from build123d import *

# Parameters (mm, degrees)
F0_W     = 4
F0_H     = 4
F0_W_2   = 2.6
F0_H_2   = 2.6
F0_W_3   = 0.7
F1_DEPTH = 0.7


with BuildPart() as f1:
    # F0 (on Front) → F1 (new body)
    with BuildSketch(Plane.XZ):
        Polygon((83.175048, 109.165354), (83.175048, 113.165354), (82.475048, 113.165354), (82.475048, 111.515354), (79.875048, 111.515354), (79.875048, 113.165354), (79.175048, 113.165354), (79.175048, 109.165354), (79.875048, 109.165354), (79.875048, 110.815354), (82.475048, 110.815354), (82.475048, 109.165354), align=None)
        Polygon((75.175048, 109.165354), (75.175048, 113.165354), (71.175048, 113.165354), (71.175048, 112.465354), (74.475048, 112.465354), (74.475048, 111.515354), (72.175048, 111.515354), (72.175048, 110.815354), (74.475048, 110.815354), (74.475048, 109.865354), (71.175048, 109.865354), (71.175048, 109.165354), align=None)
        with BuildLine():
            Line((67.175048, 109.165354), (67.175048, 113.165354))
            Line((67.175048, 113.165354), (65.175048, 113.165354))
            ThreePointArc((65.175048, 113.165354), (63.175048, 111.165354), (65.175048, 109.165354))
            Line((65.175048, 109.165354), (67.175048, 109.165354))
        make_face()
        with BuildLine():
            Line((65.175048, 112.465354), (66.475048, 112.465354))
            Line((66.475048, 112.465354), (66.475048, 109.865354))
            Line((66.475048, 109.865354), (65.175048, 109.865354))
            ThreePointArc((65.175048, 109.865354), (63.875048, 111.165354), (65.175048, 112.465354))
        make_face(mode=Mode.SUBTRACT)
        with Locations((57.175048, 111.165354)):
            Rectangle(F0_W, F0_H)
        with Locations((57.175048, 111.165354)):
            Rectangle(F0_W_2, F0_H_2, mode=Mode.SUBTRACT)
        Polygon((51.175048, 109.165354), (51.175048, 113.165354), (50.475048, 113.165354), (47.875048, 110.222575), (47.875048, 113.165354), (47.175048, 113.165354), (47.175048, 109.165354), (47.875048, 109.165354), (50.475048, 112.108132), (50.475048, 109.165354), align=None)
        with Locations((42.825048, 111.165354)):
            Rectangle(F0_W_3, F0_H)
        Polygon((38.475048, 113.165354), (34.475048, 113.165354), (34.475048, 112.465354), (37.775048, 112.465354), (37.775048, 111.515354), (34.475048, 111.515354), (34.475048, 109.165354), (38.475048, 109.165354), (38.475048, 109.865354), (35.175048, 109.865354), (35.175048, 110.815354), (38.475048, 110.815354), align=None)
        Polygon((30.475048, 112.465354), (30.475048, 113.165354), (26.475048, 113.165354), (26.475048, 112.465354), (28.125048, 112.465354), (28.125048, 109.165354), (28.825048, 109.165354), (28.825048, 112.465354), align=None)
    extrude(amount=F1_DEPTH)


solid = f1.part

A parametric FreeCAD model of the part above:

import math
import FreeCAD as App
import Part
import Sketcher

doc = App.newDocument("Part")
body = doc.addObject("PartDesign::Body", "Body")
body.AllowCompound = True

sketch1 = body.newObject("Sketcher::SketchObject", "Sketch")
sketch1.AttachmentSupport = (doc.getObject("XZ_Plane"), [""])
sketch1.MapMode = "FlatFace"
sketch1.addGeometry(Part.LineSegment(App.Vector(83.175048, 109.165354, 0), App.Vector(83.175048, 113.165354, 0)), False)
sketch1.addGeometry(Part.LineSegment(App.Vector(83.175048, 113.165354, 0), App.Vector(82.475048, 113.165354, 0)), False)
sketch1.addGeometry(Part.LineSegment(App.Vector(82.475048, 113.165354, 0), App.Vector(82.475048, 111.515354, 0)), False)
sketch1.addGeometry(Part.LineSegment(App.Vector(82.475048, 111.515354, 0), App.Vector(79.875048, 111.515354, 0)), False)
sketch1.addGeometry(Part.LineSegment(App.Vector(79.875048, 111.515354, 0), App.Vector(79.875048, 113.165354, 0)), False)
sketch1.addGeometry(Part.LineSegment(App.Vector(79.875048, 113.165354, 0), App.Vector(79.175048, 113.165354, 0)), False)
sketch1.addGeometry(Part.LineSegment(App.Vector(79.175048, 113.165354, 0), App.Vector(79.175048, 109.165354, 0)), False)
sketch1.addGeometry(Part.LineSegment(App.Vector(79.175048, 109.165354, 0), App.Vector(79.875048, 109.165354, 0)), False)
sketch1.addGeometry(Part.LineSegment(App.Vector(79.875048, 109.165354, 0), App.Vector(79.875048, 110.815354, 0)), False)
sketch1.addGeometry(Part.LineSegment(App.Vector(79.875048, 110.815354, 0), App.Vector(82.475048, 110.815354, 0)), False)
sketch1.addGeometry(Part.LineSegment(App.Vector(82.475048, 110.815354, 0), App.Vector(82.475048, 109.165354, 0)), False)
sketch1.addGeometry(Part.LineSegment(App.Vector(82.475048, 109.165354, 0), App.Vector(83.175048, 109.165354, 0)), False)
sketch1.addGeometry(Part.LineSegment(App.Vector(75.175048, 109.165354, 0), App.Vector(75.175048, 113.165354, 0)), False)
sketch1.addGeometry(Part.LineSegment(App.Vector(75.175048, 113.165354, 0), App.Vector(71.175048, 113.165354, 0)), False)
sketch1.addGeometry(Part.LineSegment(App.Vector(71.175048, 113.165354, 0), App.Vector(71.175048, 112.465354, 0)), False)
sketch1.addGeometry(Part.LineSegment(App.Vector(71.175048, 112.465354, 0), App.Vector(74.475048, 112.465354, 0)), False)
sketch1.addGeometry(Part.LineSegment(App.Vector(74.475048, 112.465354, 0), App.Vector(74.475048, 111.515354, 0)), False)
sketch1.addGeometry(Part.LineSegment(App.Vector(74.475048, 111.515354, 0), App.Vector(72.175048, 111.515354, 0)), False)
sketch1.addGeometry(Part.LineSegment(App.Vector(72.175048, 111.515354, 0), App.Vector(72.175048, 110.815354, 0)), False)
sketch1.addGeometry(Part.LineSegment(App.Vector(72.175048, 110.815354, 0), App.Vector(74.475048, 110.815354, 0)), False)
sketch1.addGeometry(Part.LineSegment(App.Vector(74.475048, 110.815354, 0), App.Vector(74.475048, 109.865354, 0)), False)
sketch1.addGeometry(Part.LineSegment(App.Vector(74.475048, 109.865354, 0), App.Vector(71.175048, 109.865354, 0)), False)
sketch1.addGeometry(Part.LineSegment(App.Vector(71.175048, 109.865354, 0), App.Vector(71.175048, 109.165354, 0)), False)
sketch1.addGeometry(Part.LineSegment(App.Vector(71.175048, 109.165354, 0), App.Vector(75.175048, 109.165354, 0)), False)
sketch1.addGeometry(Part.LineSegment(App.Vector(67.175048, 109.165354, 0), App.Vector(67.175048, 113.165354, 0)), False)
sketch1.addGeometry(Part.LineSegment(App.Vector(67.175048, 113.165354, 0), App.Vector(65.175048, 113.165354, 0)), False)
sketch1.addGeometry(Part.ArcOfCircle(Part.Circle(App.Vector(65.175048, 111.165354, 0), App.Vector(0, 0, 1), 2), math.radians(90), math.radians(270)), False)
sketch1.addGeometry(Part.LineSegment(App.Vector(65.175048, 109.165354, 0), App.Vector(67.175048, 109.165354, 0)), False)
sketch1.addGeometry(Part.ArcOfCircle(Part.Circle(App.Vector(65.175048, 111.165354, 0), App.Vector(0, 0, 1), 1.3), math.radians(90), math.radians(270)), False)
sketch1.addGeometry(Part.LineSegment(App.Vector(65.175048, 112.465354, 0), App.Vector(66.475048, 112.465354, 0)), False)
sketch1.addGeometry(Part.LineSegment(App.Vector(66.475048, 112.465354, 0), App.Vector(66.475048, 109.865354, 0)), False)
sketch1.addGeometry(Part.LineSegment(App.Vector(66.475048, 109.865354, 0), App.Vector(65.175048, 109.865354, 0)), False)
sketch1.addGeometry(Part.LineSegment(App.Vector(55.175048, 113.165354, 0), App.Vector(55.175048, 109.165354, 0)), False)
sketch1.addGeometry(Part.LineSegment(App.Vector(55.175048, 109.165354, 0), App.Vector(59.175048, 109.165354, 0)), False)
sketch1.addGeometry(Part.LineSegment(App.Vector(59.175048, 109.165354, 0), App.Vector(59.175048, 113.165354, 0)), False)
sketch1.addGeometry(Part.LineSegment(App.Vector(59.175048, 113.165354, 0), App.Vector(55.175048, 113.165354, 0)), False)
sketch1.addGeometry(Part.LineSegment(App.Vector(58.475048, 109.865354, 0), App.Vector(55.875048, 109.865354, 0)), False)
sketch1.addGeometry(Part.LineSegment(App.Vector(55.875048, 109.865354, 0), App.Vector(55.875048, 112.465354, 0)), False)
sketch1.addGeometry(Part.LineSegment(App.Vector(55.875048, 112.465354, 0), App.Vector(58.475048, 112.465354, 0)), False)
sketch1.addGeometry(Part.LineSegment(App.Vector(58.475048, 112.465354, 0), App.Vector(58.475048, 109.865354, 0)), False)
sketch1.addGeometry(Part.LineSegment(App.Vector(51.175048, 109.165354, 0), App.Vector(51.175048, 113.165354, 0)), False)
sketch1.addGeometry(Part.LineSegment(App.Vector(51.175048, 113.165354, 0), App.Vector(50.475048, 113.165354, 0)), False)
sketch1.addGeometry(Part.LineSegment(App.Vector(50.475048, 113.165354, 0), App.Vector(47.875048, 110.222575, 0)), False)
sketch1.addGeometry(Part.LineSegment(App.Vector(47.875048, 110.222575, 0), App.Vector(47.875048, 113.165354, 0)), False)
sketch1.addGeometry(Part.LineSegment(App.Vector(47.875048, 113.165354, 0), App.Vector(47.175048, 113.165354, 0)), False)
sketch1.addGeometry(Part.LineSegment(App.Vector(47.175048, 113.165354, 0), App.Vector(47.175048, 109.165354, 0)), False)
sketch1.addGeometry(Part.LineSegment(App.Vector(47.175048, 109.165354, 0), App.Vector(47.875048, 109.165354, 0)), False)
sketch1.addGeometry(Part.LineSegment(App.Vector(47.875048, 109.165354, 0), App.Vector(50.475048, 112.108132, 0)), False)
sketch1.addGeometry(Part.LineSegment(App.Vector(50.475048, 112.108132, 0), App.Vector(50.475048, 109.165354, 0)), False)
sketch1.addGeometry(Part.LineSegment(App.Vector(50.475048, 109.165354, 0), App.Vector(51.175048, 109.165354, 0)), False)
sketch1.addGeometry(Part.LineSegment(App.Vector(42.475048, 113.165354, 0), App.Vector(42.475048, 109.165354, 0)), False)
sketch1.addGeometry(Part.LineSegment(App.Vector(42.475048, 109.165354, 0), App.Vector(43.175048, 109.165354, 0)), False)
sketch1.addGeometry(Part.LineSegment(App.Vector(43.175048, 109.165354, 0), App.Vector(43.175048, 113.165354, 0)), False)
sketch1.addGeometry(Part.LineSegment(App.Vector(43.175048, 113.165354, 0), App.Vector(42.475048, 113.165354, 0)), False)
sketch1.addGeometry(Part.LineSegment(App.Vector(38.475048, 113.165354, 0), App.Vector(34.475048, 113.165354, 0)), False)
sketch1.addGeometry(Part.LineSegment(App.Vector(34.475048, 113.165354, 0), App.Vector(34.475048, 112.465354, 0)), False)
sketch1.addGeometry(Part.LineSegment(App.Vector(34.475048, 112.465354, 0), App.Vector(37.775048, 112.465354, 0)), False)
sketch1.addGeometry(Part.LineSegment(App.Vector(37.775048, 112.465354, 0), App.Vector(37.775048, 111.515354, 0)), False)
sketch1.addGeometry(Part.LineSegment(App.Vector(37.775048, 111.515354, 0), App.Vector(34.475048, 111.515354, 0)), False)
sketch1.addGeometry(Part.LineSegment(App.Vector(34.475048, 111.515354, 0), App.Vector(34.475048, 109.165354, 0)), False)
sketch1.addGeometry(Part.LineSegment(App.Vector(34.475048, 109.165354, 0), App.Vector(38.475048, 109.165354, 0)), False)
sketch1.addGeometry(Part.LineSegment(App.Vector(38.475048, 109.165354, 0), App.Vector(38.475048, 109.865354, 0)), False)
sketch1.addGeometry(Part.LineSegment(App.Vector(38.475048, 109.865354, 0), App.Vector(35.175048, 109.865354, 0)), False)
sketch1.addGeometry(Part.LineSegment(App.Vector(35.175048, 109.865354, 0), App.Vector(35.175048, 110.815354, 0)), False)
sketch1.addGeometry(Part.LineSegment(App.Vector(35.175048, 110.815354, 0), App.Vector(38.475048, 110.815354, 0)), False)
sketch1.addGeometry(Part.LineSegment(App.Vector(38.475048, 110.815354, 0), App.Vector(38.475048, 113.165354, 0)), False)
sketch1.addGeometry(Part.LineSegment(App.Vector(30.475048, 112.465354, 0), App.Vector(30.475048, 113.165354, 0)), False)
sketch1.addGeometry(Part.LineSegment(App.Vector(30.475048, 113.165354, 0), App.Vector(26.475048, 113.165354, 0)), False)
sketch1.addGeometry(Part.LineSegment(App.Vector(26.475048, 113.165354, 0), App.Vector(26.475048, 112.465354, 0)), False)
sketch1.addGeometry(Part.LineSegment(App.Vector(26.475048, 112.465354, 0), App.Vector(28.125048, 112.465354, 0)), False)
sketch1.addGeometry(Part.LineSegment(App.Vector(28.125048, 112.465354, 0), App.Vector(28.125048, 109.165354, 0)), False)
sketch1.addGeometry(Part.LineSegment(App.Vector(28.125048, 109.165354, 0), App.Vector(28.825048, 109.165354, 0)), False)
sketch1.addGeometry(Part.LineSegment(App.Vector(28.825048, 109.165354, 0), App.Vector(28.825048, 112.465354, 0)), False)
sketch1.addGeometry(Part.LineSegment(App.Vector(28.825048, 112.465354, 0), App.Vector(30.475048, 112.465354, 0)), False)
sketch1.addConstraint(Sketcher.Constraint("Coincident", 0, 2, 1, 1))
sketch1.addConstraint(Sketcher.Constraint("Coincident", 1, 2, 2, 1))
sketch1.addConstraint(Sketcher.Constraint("Coincident", 2, 2, 3, 1))
sketch1.addConstraint(Sketcher.Constraint("Coincident", 3, 2, 4, 1))
sketch1.addConstraint(Sketcher.Constraint("Coincident", 4, 2, 5, 1))
sketch1.addConstraint(Sketcher.Constraint("Coincident", 5, 2, 6, 1))
sketch1.addConstraint(Sketcher.Constraint("Coincident", 6, 2, 7, 1))
sketch1.addConstraint(Sketcher.Constraint("Coincident", 7, 2, 8, 1))
sketch1.addConstraint(Sketcher.Constraint("Coincident", 8, 2, 9, 1))
sketch1.addConstraint(Sketcher.Constraint("Coincident", 9, 2, 10, 1))
sketch1.addConstraint(Sketcher.Constraint("Coincident", 10, 2, 11, 1))
sketch1.addConstraint(Sketcher.Constraint("Coincident", 11, 2, 0, 1))
sketch1.addConstraint(Sketcher.Constraint("Coincident", 12, 2, 13, 1))
sketch1.addConstraint(Sketcher.Constraint("Coincident", 13, 2, 14, 1))
sketch1.addConstraint(Sketcher.Constraint("Coincident", 14, 2, 15, 1))
sketch1.addConstraint(Sketcher.Constraint("Coincident", 15, 2, 16, 1))
sketch1.addConstraint(Sketcher.Constraint("Coincident", 16, 2, 17, 1))
sketch1.addConstraint(Sketcher.Constraint("Coincident", 17, 2, 18, 1))
sketch1.addConstraint(Sketcher.Constraint("Coincident", 18, 2, 19, 1))
sketch1.addConstraint(Sketcher.Constraint("Coincident", 19, 2, 20, 1))
sketch1.addConstraint(Sketcher.Constraint("Coincident", 20, 2, 21, 1))
sketch1.addConstraint(Sketcher.Constraint("Coincident", 21, 2, 22, 1))
sketch1.addConstraint(Sketcher.Constraint("Coincident", 22, 2, 23, 1))
sketch1.addConstraint(Sketcher.Constraint("Coincident", 23, 2, 12, 1))
sketch1.addConstraint(Sketcher.Constraint("Coincident", 24, 2, 25, 1))
sketch1.addConstraint(Sketcher.Constraint("Tangent", 25, 2, 26, 1))
sketch1.addConstraint(Sketcher.Constraint("Tangent", 26, 2, 27, 1))
sketch1.addConstraint(Sketcher.Constraint("Coincident", 27, 2, 24, 1))
sketch1.addConstraint(Sketcher.Constraint("Tangent", 28, 1, 29, 1))
sketch1.addConstraint(Sketcher.Constraint("Coincident", 29, 2, 30, 1))
sketch1.addConstraint(Sketcher.Constraint("Coincident", 30, 2, 31, 1))
sketch1.addConstraint(Sketcher.Constraint("Tangent", 31, 2, 28, 2))
sketch1.addConstraint(Sketcher.Constraint("Coincident", 32, 2, 33, 1))
sketch1.addConstraint(Sketcher.Constraint("Coincident", 33, 2, 34, 1))
sketch1.addConstraint(Sketcher.Constraint("Coincident", 34, 2, 35, 1))
sketch1.addConstraint(Sketcher.Constraint("Coincident", 35, 2, 32, 1))
sketch1.addConstraint(Sketcher.Constraint("Coincident", 36, 2, 37, 1))
sketch1.addConstraint(Sketcher.Constraint("Coincident", 37, 2, 38, 1))
sketch1.addConstraint(Sketcher.Constraint("Coincident", 38, 2, 39, 1))
sketch1.addConstraint(Sketcher.Constraint("Coincident", 39, 2, 36, 1))
sketch1.addConstraint(Sketcher.Constraint("Coincident", 40, 2, 41, 1))
sketch1.addConstraint(Sketcher.Constraint("Coincident", 41, 2, 42, 1))
sketch1.addConstraint(Sketcher.Constraint("Coincident", 42, 2, 43, 1))
sketch1.addConstraint(Sketcher.Constraint("Coincident", 43, 2, 44, 1))
sketch1.addConstraint(Sketcher.Constraint("Coincident", 44, 2, 45, 1))
sketch1.addConstraint(Sketcher.Constraint("Coincident", 45, 2, 46, 1))
sketch1.addConstraint(Sketcher.Constraint("Coincident", 46, 2, 47, 1))
sketch1.addConstraint(Sketcher.Constraint("Coincident", 47, 2, 48, 1))
sketch1.addConstraint(Sketcher.Constraint("Coincident", 48, 2, 49, 1))
sketch1.addConstraint(Sketcher.Constraint("Coincident", 49, 2, 40, 1))
sketch1.addConstraint(Sketcher.Constraint("Coincident", 50, 2, 51, 1))
sketch1.addConstraint(Sketcher.Constraint("Coincident", 51, 2, 52, 1))
sketch1.addConstraint(Sketcher.Constraint("Coincident", 52, 2, 53, 1))
sketch1.addConstraint(Sketcher.Constraint("Coincident", 53, 2, 50, 1))
sketch1.addConstraint(Sketcher.Constraint("Coincident", 54, 2, 55, 1))
sketch1.addConstraint(Sketcher.Constraint("Coincident", 55, 2, 56, 1))
sketch1.addConstraint(Sketcher.Constraint("Coincident", 56, 2, 57, 1))
sketch1.addConstraint(Sketcher.Constraint("Coincident", 57, 2, 58, 1))
sketch1.addConstraint(Sketcher.Constraint("Coincident", 58, 2, 59, 1))
sketch1.addConstraint(Sketcher.Constraint("Coincident", 59, 2, 60, 1))
sketch1.addConstraint(Sketcher.Constraint("Coincident", 60, 2, 61, 1))
sketch1.addConstraint(Sketcher.Constraint("Coincident", 61, 2, 62, 1))
sketch1.addConstraint(Sketcher.Constraint("Coincident", 62, 2, 63, 1))
sketch1.addConstraint(Sketcher.Constraint("Coincident", 63, 2, 64, 1))
sketch1.addConstraint(Sketcher.Constraint("Coincident", 64, 2, 65, 1))
sketch1.addConstraint(Sketcher.Constraint("Coincident", 65, 2, 54, 1))
sketch1.addConstraint(Sketcher.Constraint("Coincident", 66, 2, 67, 1))
sketch1.addConstraint(Sketcher.Constraint("Coincident", 67, 2, 68, 1))
sketch1.addConstraint(Sketcher.Constraint("Coincident", 68, 2, 69, 1))
sketch1.addConstraint(Sketcher.Constraint("Coincident", 69, 2, 70, 1))
sketch1.addConstraint(Sketcher.Constraint("Coincident", 70, 2, 71, 1))
sketch1.addConstraint(Sketcher.Constraint("Coincident", 71, 2, 72, 1))
sketch1.addConstraint(Sketcher.Constraint("Coincident", 72, 2, 73, 1))
sketch1.addConstraint(Sketcher.Constraint("Coincident", 73, 2, 66, 1))
sketch1.addConstraint(Sketcher.Constraint("Vertical", 0))
sketch1.addConstraint(Sketcher.Constraint("Horizontal", 1))
sketch1.addConstraint(Sketcher.Constraint("Vertical", 2))
sketch1.addConstraint(Sketcher.Constraint("Horizontal", 3))
sketch1.addConstraint(Sketcher.Constraint("Vertical", 4))
sketch1.addConstraint(Sketcher.Constraint("Horizontal", 5))
sketch1.addConstraint(Sketcher.Constraint("Vertical", 6))
sketch1.addConstraint(Sketcher.Constraint("Horizontal", 7))
sketch1.addConstraint(Sketcher.Constraint("Vertical", 8))
sketch1.addConstraint(Sketcher.Constraint("Horizontal", 9))
sketch1.addConstraint(Sketcher.Constraint("Vertical", 10))
sketch1.addConstraint(Sketcher.Constraint("Horizontal", 11))
sketch1.addConstraint(Sketcher.Constraint("Vertical", 12))
sketch1.addConstraint(Sketcher.Constraint("Horizontal", 13))
sketch1.addConstraint(Sketcher.Constraint("Vertical", 14))
sketch1.addConstraint(Sketcher.Constraint("Horizontal", 15))
sketch1.addConstraint(Sketcher.Constraint("Vertical", 16))
sketch1.addConstraint(Sketcher.Constraint("Horizontal", 17))
sketch1.addConstraint(Sketcher.Constraint("Vertical", 18))
sketch1.addConstraint(Sketcher.Constraint("Horizontal", 19))
sketch1.addConstraint(Sketcher.Constraint("Vertical", 20))
sketch1.addConstraint(Sketcher.Constraint("Horizontal", 21))
sketch1.addConstraint(Sketcher.Constraint("Vertical", 22))
sketch1.addConstraint(Sketcher.Constraint("Horizontal", 23))
sketch1.addConstraint(Sketcher.Constraint("Vertical", 24))
sketch1.addConstraint(Sketcher.Constraint("Horizontal", 25))
sketch1.addConstraint(Sketcher.Constraint("Horizontal", 27))
sketch1.addConstraint(Sketcher.Constraint("Horizontal", 29))
sketch1.addConstraint(Sketcher.Constraint("Vertical", 30))
sketch1.addConstraint(Sketcher.Constraint("Horizontal", 31))
sketch1.addConstraint(Sketcher.Constraint("Vertical", 32))
sketch1.addConstraint(Sketcher.Constraint("Horizontal", 33))
sketch1.addConstraint(Sketcher.Constraint("Vertical", 34))
sketch1.addConstraint(Sketcher.Constraint("Horizontal", 35))
sketch1.addConstraint(Sketcher.Constraint("Horizontal", 36))
sketch1.addConstraint(Sketcher.Constraint("Vertical", 37))
sketch1.addConstraint(Sketcher.Constraint("Horizontal", 38))
sketch1.addConstraint(Sketcher.Constraint("Vertical", 39))
sketch1.addConstraint(Sketcher.Constraint("Vertical", 40))
sketch1.addConstraint(Sketcher.Constraint("Horizontal", 41))
sketch1.addConstraint(Sketcher.Constraint("Vertical", 43))
sketch1.addConstraint(Sketcher.Constraint("Horizontal", 44))
sketch1.addConstraint(Sketcher.Constraint("Vertical", 45))
sketch1.addConstraint(Sketcher.Constraint("Horizontal", 46))
sketch1.addConstraint(Sketcher.Constraint("Vertical", 48))
sketch1.addConstraint(Sketcher.Constraint("Horizontal", 49))
sketch1.addConstraint(Sketcher.Constraint("Vertical", 50))
sketch1.addConstraint(Sketcher.Constraint("Horizontal", 51))
sketch1.addConstraint(Sketcher.Constraint("Vertical", 52))
sketch1.addConstraint(Sketcher.Constraint("Horizontal", 53))
sketch1.addConstraint(Sketcher.Constraint("Horizontal", 54))
sketch1.addConstraint(Sketcher.Constraint("Vertical", 55))
sketch1.addConstraint(Sketcher.Constraint("Horizontal", 56))
sketch1.addConstraint(Sketcher.Constraint("Vertical", 57))
sketch1.addConstraint(Sketcher.Constraint("Horizontal", 58))
sketch1.addConstraint(Sketcher.Constraint("Vertical", 59))
sketch1.addConstraint(Sketcher.Constraint("Horizontal", 60))
sketch1.addConstraint(Sketcher.Constraint("Vertical", 61))
sketch1.addConstraint(Sketcher.Constraint("Horizontal", 62))
sketch1.addConstraint(Sketcher.Constraint("Vertical", 63))
sketch1.addConstraint(Sketcher.Constraint("Horizontal", 64))
sketch1.addConstraint(Sketcher.Constraint("Vertical", 65))
sketch1.addConstraint(Sketcher.Constraint("Vertical", 66))
sketch1.addConstraint(Sketcher.Constraint("Horizontal", 67))
sketch1.addConstraint(Sketcher.Constraint("Vertical", 68))
sketch1.addConstraint(Sketcher.Constraint("Horizontal", 69))
sketch1.addConstraint(Sketcher.Constraint("Vertical", 70))
sketch1.addConstraint(Sketcher.Constraint("Horizontal", 71))
sketch1.addConstraint(Sketcher.Constraint("Vertical", 72))
sketch1.addConstraint(Sketcher.Constraint("Horizontal", 73))
sketch1.addConstraint(Sketcher.Constraint("Coincident", 28, 3, 26, 3))
sketch1.addConstraint(Sketcher.Constraint("Parallel", 42, 47))
sketch1.addConstraint(Sketcher.Constraint("Horizontal", 1, 2, 4, 2))
sketch1.addConstraint(Sketcher.Constraint("Horizontal", 7, 2, 10, 2))
sketch1.addConstraint(Sketcher.Constraint("Horizontal", 5, 2, 12, 2))
sketch1.addConstraint(Sketcher.Constraint("Horizontal", 3, 2, 16, 2))
sketch1.addConstraint(Sketcher.Constraint("Horizontal", 9, 2, 18, 2))
sketch1.addConstraint(Sketcher.Constraint("Horizontal", 11, 2, 22, 2))
sketch1.addConstraint(Sketcher.Constraint("Horizontal", 13, 2, 24, 2))
sketch1.addConstraint(Sketcher.Constraint("Horizontal", 23, 2, 26, 2))
sketch1.addConstraint(Sketcher.Constraint("Horizontal", 15, 2, 28, 1))
sketch1.addConstraint(Sketcher.Constraint("Horizontal", 21, 2, 30, 2))
sketch1.addConstraint(Sketcher.Constraint("Horizontal", 27, 2, 32, 2))
sketch1.addConstraint(Sketcher.Constraint("Horizontal", 25, 2, 34, 2))
sketch1.addConstraint(Sketcher.Constraint("Horizontal", 31, 2, 36, 2))
sketch1.addConstraint(Sketcher.Constraint("Horizontal", 29, 2, 37, 2))
sketch1.addConstraint(Sketcher.Constraint("Horizontal", 35, 2, 40, 2))
sketch1.addConstraint(Sketcher.Constraint("Horizontal", 41, 2, 43, 2))
sketch1.addConstraint(Sketcher.Constraint("Horizontal", 33, 2, 45, 2))
sketch1.addConstraint(Sketcher.Constraint("Horizontal", 46, 2, 48, 2))
sketch1.addConstraint(Sketcher.Constraint("Horizontal", 49, 2, 50, 2))
sketch1.addConstraint(Sketcher.Constraint("Horizontal", 44, 2, 52, 2))
sketch1.addConstraint(Sketcher.Constraint("Horizontal", 53, 2, 54, 2))
sketch1.addConstraint(Sketcher.Constraint("Horizontal", 38, 2, 55, 2))
sketch1.addConstraint(Sketcher.Constraint("Horizontal", 17, 2, 57, 2))
sketch1.addConstraint(Sketcher.Constraint("Horizontal", 51, 2, 59, 2))
sketch1.addConstraint(Sketcher.Constraint("Horizontal", 39, 2, 61, 2))
sketch1.addConstraint(Sketcher.Constraint("Horizontal", 19, 2, 63, 2))
sketch1.addConstraint(Sketcher.Constraint("Horizontal", 65, 2, 66, 2))
sketch1.addConstraint(Sketcher.Constraint("Horizontal", 56, 2, 68, 2))
sketch1.addConstraint(Sketcher.Constraint("Horizontal", 60, 2, 70, 2))
sketch1.addConstraint(Sketcher.Constraint("Horizontal", 69, 2, 72, 2))
sketch1.addConstraint(Sketcher.Constraint("Vertical", 4, 2, 7, 2))
sketch1.addConstraint(Sketcher.Constraint("Vertical", 2, 2, 9, 2))
sketch1.addConstraint(Sketcher.Constraint("Vertical", 16, 2, 19, 2))
sketch1.addConstraint(Sketcher.Constraint("Vertical", 14, 2, 21, 2))
sketch1.addConstraint(Sketcher.Constraint("Vertical", 43, 2, 46, 2))
sketch1.addConstraint(Sketcher.Constraint("Vertical", 41, 2, 47, 2))
sketch1.addConstraint(Sketcher.Constraint("Vertical", 55, 2, 58, 2))
sketch1.addConstraint(Sketcher.Constraint("Vertical", 61, 2, 64, 2))
sketch1.addConstraint(Sketcher.Constraint("Equal", 1, 5))
sketch1.addConstraint(Sketcher.Constraint("Equal", 23, 33))
sketch1.addConstraint(Sketcher.Constraint("Equal", 9, 36))
sketch1.addConstraint(Sketcher.Constraint("Equal", 11, 41))
sketch1.addConstraint(Sketcher.Constraint("Equal", 41, 44))
sketch1.addConstraint(Sketcher.Constraint("Equal", 49, 51))
sketch1.addConstraint(Sketcher.Constraint("Equal", 35, 54))
sketch1.addConstraint(Sketcher.Constraint("Equal", 21, 56))
sketch1.addConstraint(Sketcher.Constraint("Equal", 58, 62))
sketch1.addConstraint(Sketcher.Constraint("Equal", 60, 67))
sketch1.addConstraint(Sketcher.Constraint("Equal", 53, 71))
sketch1.addConstraint(Sketcher.Constraint("Equal", 69, 73))
sketch1.addConstraint(Sketcher.Constraint("Equal", 67, 0))
sketch1.addConstraint(Sketcher.Constraint("Equal", 73, 2))
sketch1.addConstraint(Sketcher.Constraint("Equal", 4, 8))
sketch1.addConstraint(Sketcher.Constraint("Equal", 71, 14))
sketch1.addConstraint(Sketcher.Constraint("Equal", 38, 30))
sketch1.addConstraint(Sketcher.Constraint("Equal", 64, 70))
sketch1.addConstraint(Sketcher.Constraint("Radius", 26, 2.0))
sketch1.addConstraint(Sketcher.Constraint("Radius", 28, 1.3))
sketch1.addConstraint(Sketcher.Constraint("DistanceX", 25, 2, 25, 1, 2.0))
sketch1.addConstraint(Sketcher.Constraint("DistanceX", 17, 2, 17, 1, 2.3))
sketch1.addConstraint(Sketcher.Constraint("DistanceX", 29, 1, 29, 2, 1.3))
sketch1.addConstraint(Sketcher.Constraint("DistanceY", 43, 1, 43, 2, 2.942779))
sketch1.addConstraint(Sketcher.Constraint("DistanceX", -1, 1, 26, 3, 65.175048))
sketch1.addConstraint(Sketcher.Constraint("DistanceX", -1, 1, 0, 2, 83.175048))
sketch1.addConstraint(Sketcher.Constraint("DistanceX", -1, 1, 12, 2, 75.175048))
sketch1.addConstraint(Sketcher.Constraint("DistanceY", -1, 1, 47, 2, 112.108132))
sketch1.addConstraint(Sketcher.Constraint("DistanceX", -1, 1, 66, 2, 30.475048))
sketch1.addConstraint(Sketcher.Constraint("Distance", 42, 3.926824))
sketch1.addConstraint(Sketcher.Constraint("DistanceX", -1, 1, 32, 2, 55.175048))
sketch1.addConstraint(Sketcher.Constraint("DistanceX", -1, 1, 36, 2, 55.875048))
sketch1.addConstraint(Sketcher.Constraint("DistanceX", -1, 1, 40, 2, 51.175048))
sketch1.addConstraint(Sketcher.Constraint("DistanceX", -1, 1, 50, 2, 42.475048))
sketch1.addConstraint(Sketcher.Constraint("DistanceX", -1, 1, 54, 2, 34.475048))
pad1 = body.newObject("PartDesign::Pad", "Pad")
pad1.Profile = sketch1
pad1.Length = 0.7

doc.recompute()
